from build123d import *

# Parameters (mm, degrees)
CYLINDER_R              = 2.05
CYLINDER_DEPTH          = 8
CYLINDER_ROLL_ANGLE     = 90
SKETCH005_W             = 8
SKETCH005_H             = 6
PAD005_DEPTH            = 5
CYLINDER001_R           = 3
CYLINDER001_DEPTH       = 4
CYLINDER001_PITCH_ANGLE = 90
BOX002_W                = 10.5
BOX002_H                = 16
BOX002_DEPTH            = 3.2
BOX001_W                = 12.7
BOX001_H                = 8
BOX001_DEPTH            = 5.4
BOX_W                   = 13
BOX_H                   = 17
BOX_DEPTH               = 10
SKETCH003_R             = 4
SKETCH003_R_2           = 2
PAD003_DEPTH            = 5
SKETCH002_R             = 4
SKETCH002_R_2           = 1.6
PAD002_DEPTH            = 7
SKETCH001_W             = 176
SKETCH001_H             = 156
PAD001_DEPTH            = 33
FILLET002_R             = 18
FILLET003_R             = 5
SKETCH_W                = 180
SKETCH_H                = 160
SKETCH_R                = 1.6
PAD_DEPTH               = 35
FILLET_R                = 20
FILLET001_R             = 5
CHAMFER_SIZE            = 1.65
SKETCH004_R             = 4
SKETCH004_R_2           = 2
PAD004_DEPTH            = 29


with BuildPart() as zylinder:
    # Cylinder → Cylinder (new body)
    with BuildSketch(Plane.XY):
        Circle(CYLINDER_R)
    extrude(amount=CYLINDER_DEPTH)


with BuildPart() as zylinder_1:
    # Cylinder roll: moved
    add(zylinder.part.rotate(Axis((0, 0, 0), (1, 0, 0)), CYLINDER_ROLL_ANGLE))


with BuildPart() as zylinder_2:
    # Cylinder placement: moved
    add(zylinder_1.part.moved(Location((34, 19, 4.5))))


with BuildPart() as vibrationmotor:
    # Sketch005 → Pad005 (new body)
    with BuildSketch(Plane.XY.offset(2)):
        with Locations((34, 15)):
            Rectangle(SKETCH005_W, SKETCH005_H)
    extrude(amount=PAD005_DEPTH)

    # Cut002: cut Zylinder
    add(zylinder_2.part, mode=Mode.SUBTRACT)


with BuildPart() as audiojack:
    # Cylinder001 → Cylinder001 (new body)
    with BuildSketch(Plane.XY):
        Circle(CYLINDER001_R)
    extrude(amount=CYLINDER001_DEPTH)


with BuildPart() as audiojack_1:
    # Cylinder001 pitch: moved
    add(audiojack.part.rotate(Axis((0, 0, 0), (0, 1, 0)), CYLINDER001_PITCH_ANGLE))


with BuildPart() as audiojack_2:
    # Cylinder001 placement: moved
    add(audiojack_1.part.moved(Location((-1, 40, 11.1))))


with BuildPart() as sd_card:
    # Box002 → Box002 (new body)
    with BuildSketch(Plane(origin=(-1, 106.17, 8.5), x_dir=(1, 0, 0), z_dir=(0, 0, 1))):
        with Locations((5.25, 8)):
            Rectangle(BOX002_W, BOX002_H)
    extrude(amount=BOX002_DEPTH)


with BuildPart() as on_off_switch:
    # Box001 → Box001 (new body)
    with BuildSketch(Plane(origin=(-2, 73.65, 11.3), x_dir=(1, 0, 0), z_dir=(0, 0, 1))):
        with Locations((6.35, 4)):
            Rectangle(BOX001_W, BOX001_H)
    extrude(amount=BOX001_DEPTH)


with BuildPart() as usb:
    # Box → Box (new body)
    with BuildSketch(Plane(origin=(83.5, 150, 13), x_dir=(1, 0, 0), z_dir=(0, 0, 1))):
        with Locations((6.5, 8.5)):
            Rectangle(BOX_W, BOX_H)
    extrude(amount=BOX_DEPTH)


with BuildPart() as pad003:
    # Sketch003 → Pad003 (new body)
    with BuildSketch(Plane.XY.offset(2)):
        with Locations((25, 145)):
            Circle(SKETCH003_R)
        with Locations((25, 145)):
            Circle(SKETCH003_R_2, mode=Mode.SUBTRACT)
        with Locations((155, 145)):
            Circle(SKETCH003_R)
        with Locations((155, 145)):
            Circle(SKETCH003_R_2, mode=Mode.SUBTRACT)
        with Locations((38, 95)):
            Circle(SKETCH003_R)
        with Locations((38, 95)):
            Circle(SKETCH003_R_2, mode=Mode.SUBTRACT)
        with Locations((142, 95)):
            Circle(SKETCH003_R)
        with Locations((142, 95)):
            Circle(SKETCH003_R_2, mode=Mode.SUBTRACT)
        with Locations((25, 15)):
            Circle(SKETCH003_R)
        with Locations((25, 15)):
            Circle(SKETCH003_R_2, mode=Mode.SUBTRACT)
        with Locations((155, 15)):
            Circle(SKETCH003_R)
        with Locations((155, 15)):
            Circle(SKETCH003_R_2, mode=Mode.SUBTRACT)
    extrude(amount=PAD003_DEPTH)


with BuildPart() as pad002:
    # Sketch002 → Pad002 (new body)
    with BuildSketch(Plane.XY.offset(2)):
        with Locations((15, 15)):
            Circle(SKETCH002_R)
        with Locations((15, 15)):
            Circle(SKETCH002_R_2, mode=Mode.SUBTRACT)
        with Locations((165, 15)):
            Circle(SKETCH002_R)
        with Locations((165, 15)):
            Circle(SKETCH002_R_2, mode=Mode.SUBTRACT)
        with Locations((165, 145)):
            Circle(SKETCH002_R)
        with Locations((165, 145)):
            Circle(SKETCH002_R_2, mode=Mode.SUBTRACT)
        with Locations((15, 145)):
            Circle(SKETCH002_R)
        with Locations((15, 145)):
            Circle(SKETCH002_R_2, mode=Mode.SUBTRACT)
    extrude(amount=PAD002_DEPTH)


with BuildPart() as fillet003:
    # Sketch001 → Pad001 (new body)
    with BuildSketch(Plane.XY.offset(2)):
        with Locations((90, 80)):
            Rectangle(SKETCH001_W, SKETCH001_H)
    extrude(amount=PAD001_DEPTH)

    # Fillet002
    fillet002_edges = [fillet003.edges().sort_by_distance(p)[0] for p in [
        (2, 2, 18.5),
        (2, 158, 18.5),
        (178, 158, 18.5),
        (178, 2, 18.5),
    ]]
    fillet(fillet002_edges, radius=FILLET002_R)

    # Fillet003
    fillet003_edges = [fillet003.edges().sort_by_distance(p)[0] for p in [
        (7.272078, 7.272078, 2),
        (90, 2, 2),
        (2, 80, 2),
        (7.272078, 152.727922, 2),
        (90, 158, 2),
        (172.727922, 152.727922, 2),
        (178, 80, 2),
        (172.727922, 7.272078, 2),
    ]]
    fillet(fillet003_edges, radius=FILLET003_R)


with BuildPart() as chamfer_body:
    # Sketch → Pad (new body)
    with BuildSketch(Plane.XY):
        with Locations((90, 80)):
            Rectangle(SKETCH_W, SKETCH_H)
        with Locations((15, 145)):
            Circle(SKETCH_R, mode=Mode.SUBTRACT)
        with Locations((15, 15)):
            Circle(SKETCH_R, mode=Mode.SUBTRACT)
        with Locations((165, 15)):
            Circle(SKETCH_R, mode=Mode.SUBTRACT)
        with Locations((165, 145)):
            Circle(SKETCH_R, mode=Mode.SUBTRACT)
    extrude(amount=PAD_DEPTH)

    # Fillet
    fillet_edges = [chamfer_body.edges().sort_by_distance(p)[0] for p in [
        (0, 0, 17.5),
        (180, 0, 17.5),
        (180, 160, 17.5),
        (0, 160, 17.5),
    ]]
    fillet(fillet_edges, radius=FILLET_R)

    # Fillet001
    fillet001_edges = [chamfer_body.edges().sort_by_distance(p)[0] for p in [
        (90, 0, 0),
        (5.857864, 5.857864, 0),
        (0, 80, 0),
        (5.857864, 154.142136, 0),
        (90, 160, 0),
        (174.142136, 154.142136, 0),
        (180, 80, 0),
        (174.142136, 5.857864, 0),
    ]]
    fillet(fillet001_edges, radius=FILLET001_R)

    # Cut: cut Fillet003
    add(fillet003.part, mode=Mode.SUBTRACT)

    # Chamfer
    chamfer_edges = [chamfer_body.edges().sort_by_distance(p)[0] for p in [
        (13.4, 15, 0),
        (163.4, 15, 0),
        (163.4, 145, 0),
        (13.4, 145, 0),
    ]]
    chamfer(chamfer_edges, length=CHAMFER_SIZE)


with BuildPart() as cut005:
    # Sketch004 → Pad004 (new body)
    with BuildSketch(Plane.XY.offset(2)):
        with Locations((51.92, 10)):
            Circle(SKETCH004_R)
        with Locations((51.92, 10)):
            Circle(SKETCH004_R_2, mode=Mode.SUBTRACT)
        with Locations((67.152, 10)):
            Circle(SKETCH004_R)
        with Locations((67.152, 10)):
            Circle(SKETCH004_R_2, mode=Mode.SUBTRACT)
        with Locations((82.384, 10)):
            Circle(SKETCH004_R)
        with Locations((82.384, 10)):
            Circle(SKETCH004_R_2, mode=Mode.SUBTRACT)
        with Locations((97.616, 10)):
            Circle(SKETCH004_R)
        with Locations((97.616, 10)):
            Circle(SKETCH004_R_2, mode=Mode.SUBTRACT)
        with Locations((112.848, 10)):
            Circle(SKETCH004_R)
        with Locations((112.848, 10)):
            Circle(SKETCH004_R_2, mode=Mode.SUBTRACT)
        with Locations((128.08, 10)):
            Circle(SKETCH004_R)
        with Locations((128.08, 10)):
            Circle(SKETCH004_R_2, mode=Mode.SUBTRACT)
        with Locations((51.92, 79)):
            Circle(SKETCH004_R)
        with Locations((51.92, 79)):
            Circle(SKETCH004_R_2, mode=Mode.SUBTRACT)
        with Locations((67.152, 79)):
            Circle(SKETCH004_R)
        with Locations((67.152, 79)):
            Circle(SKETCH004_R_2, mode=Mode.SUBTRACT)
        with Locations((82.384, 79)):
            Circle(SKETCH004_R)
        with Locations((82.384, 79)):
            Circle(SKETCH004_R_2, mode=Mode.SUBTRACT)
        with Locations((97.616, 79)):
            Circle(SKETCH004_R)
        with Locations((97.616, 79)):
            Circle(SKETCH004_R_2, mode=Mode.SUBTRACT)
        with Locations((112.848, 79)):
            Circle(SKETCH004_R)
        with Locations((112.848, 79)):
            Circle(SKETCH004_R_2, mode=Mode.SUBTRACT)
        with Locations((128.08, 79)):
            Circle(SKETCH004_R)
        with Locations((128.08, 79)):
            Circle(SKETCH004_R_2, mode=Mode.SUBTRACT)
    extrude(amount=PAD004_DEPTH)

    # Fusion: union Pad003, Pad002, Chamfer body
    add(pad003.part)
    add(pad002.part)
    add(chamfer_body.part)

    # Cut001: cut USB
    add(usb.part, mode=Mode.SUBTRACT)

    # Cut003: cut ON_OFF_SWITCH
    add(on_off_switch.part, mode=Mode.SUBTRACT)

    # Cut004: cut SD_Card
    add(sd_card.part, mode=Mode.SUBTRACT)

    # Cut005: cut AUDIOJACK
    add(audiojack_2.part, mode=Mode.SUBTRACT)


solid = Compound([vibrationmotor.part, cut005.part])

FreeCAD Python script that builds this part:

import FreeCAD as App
import Part
import Sketcher
Q = App.Units.Quantity


def edges_at(feature, points):
    """Names of the edges that pass closest to the given points."""
    edges = feature.Shape.Edges
    near = lambda p: min(range(len(edges)), key=lambda i: edges[i].distToShape(Part.Vertex(*p))[0])
    return sorted({f"Edge{near(p) + 1}" for p in points})

doc = App.newDocument("Part")
body = doc.addObject("PartDesign::Body", "Body")

sketch1 = body.newObject("Sketcher::SketchObject", "Sketch")
sketch1.AttachmentSupport = (doc.getObject("XY_Plane"), [""])
sketch1.MapMode = "FlatFace"
sketch1.addGeometry(Part.Circle(App.Vector(0, 0, 0), App.Vector(0, 0, 1), 2), False)
sketch1.addConstraint(Sketcher.Constraint("Coincident", 0, 3, -1, 1))
sketch1.addConstraint(Sketcher.Constraint("Diameter", 0, Q("4.1 mm")))
pad1 = body.newObject("PartDesign::Pad", "Pad")
pad1.Profile = sketch1
pad1.Length = 8
body2 = doc.addObject("PartDesign::Body", "Body001")
doc.recompute()

body.Placement = App.Placement(App.Vector(0, 0, 0), App.Rotation(App.Vector(1, 0, 0), 90))
boolean = body2.newObject("PartDesign::Boolean", "Boolean")
boolean.Type = "Fuse"
boolean.addObjects([body])
body3 = doc.addObject("PartDesign::Body", "Body002")
doc.recompute()

body2.Placement = App.Placement(App.Vector(34, 19, 4.5), App.Rotation(App.Vector(0, 0, 1), 0))
boolean2 = body3.newObject("PartDesign::Boolean", "Boolean001")
boolean2.Type = "Fuse"
boolean2.addObjects([body2])
body4 = doc.addObject("PartDesign::Body", "Body003")

sketch2 = body4.newObject("Sketcher::SketchObject", "Sketch001")
sketch2.AttachmentSupport = (doc.getObject("XY_Plane003"), [""])
sketch2.MapMode = "FlatFace"
sketch2.AttachmentOffset = App.Placement(App.Vector(0, 0, 2), App.Rotation())
sketch2.addGeometry(Part.LineSegment(App.Vector(30, 18, 0), App.Vector(30, 12, 0)), False)
sketch2.addGeometry(Part.LineSegment(App.Vector(30, 12, 0), App.Vector(38, 12, 0)), False)
sketch2.addGeometry(Part.LineSegment(App.Vector(38, 12, 0), App.Vector(38, 18, 0)), False)
sketch2.addGeometry(Part.LineSegment(App.Vector(38, 18, 0), App.Vector(30, 18, 0)), False)
sketch2.addConstraint(Sketcher.Constraint("Coincident", 0, 2, 1, 1))
sketch2.addConstraint(Sketcher.Constraint("Coincident", 1, 2, 2, 1))
sketch2.addConstraint(Sketcher.Constraint("Coincident", 2, 2, 3, 1))
sketch2.addConstraint(Sketcher.Constraint("Coincident", 3, 2, 0, 1))
sketch2.addConstraint(Sketcher.Constraint("Vertical", 0))
sketch2.addConstraint(Sketcher.Constraint("Horizontal", 1))
sketch2.addConstraint(Sketcher.Constraint("Vertical", 2))
sketch2.addConstraint(Sketcher.Constraint("Horizontal", 3))
sketch2.addConstraint(Sketcher.Constraint("DistanceX", 1, 1, 1, 2, Q("8 mm")))
sketch2.addConstraint(Sketcher.Constraint("DistanceY", 0, 2, 0, 1, Q("6 mm")))
sketch2.addConstraint(Sketcher.Constraint("DistanceX", -1, 1, 0, 2, Q("30 mm")))
sketch2.addConstraint(Sketcher.Constraint("DistanceY", -1, 1, 0, 2, Q("12 mm")))
pad2 = body4.newObject("PartDesign::Pad", "Pad001")
pad2.Profile = sketch2
pad2.Length = 5
doc.recompute()

boolean3 = body4.newObject("PartDesign::Boolean", "Boolean002")
boolean3.Type = "Cut"
boolean3.addObjects([body3])
body5 = doc.addObject("PartDesign::Body", "Body004")

sketch3 = body5.newObject("Sketcher::SketchObject", "Sketch002")
sketch3.AttachmentSupport = (doc.getObject("XY_Plane004"), [""])
sketch3.MapMode = "FlatFace"
sketch3.addGeometry(Part.Circle(App.Vector(0, 0, 0), App.Vector(0, 0, 1), 3), False)
sketch3.addConstraint(Sketcher.Constraint("Coincident", 0, 3, -1, 1))
sketch3.addConstraint(Sketcher.Constraint("Diameter", 0, Q("6 mm")))
pad3 = body5.newObject("PartDesign::Pad", "Pad002")
pad3.Profile = sketch3
pad3.Length = 4
body6 = doc.addObject("PartDesign::Body", "Body005")
doc.recompute()

body5.Placement = App.Placement(App.Vector(0, 0, 0), App.Rotation(App.Vector(0, 1, 0), 90))
boolean4 = body6.newObject("PartDesign::Boolean", "Boolean003")
boolean4.Type = "Fuse"
boolean4.addObjects([body5])
body7 = doc.addObject("PartDesign::Body", "Body006")
doc.recompute()

body6.Placement = App.Placement(App.Vector(-1, 40, 11.1), App.Rotation(App.Vector(0, 0, 1), 0))
boolean5 = body7.newObject("PartDesign::Boolean", "Boolean004")
boolean5.Type = "Fuse"
boolean5.addObjects([body6])
body8 = doc.addObject("PartDesign::Body", "Body007")

sketch4 = body8.newObject("Sketcher::SketchObject", "Sketch003")
sketch4.AttachmentSupport = (doc.getObject("XY_Plane007"), [""])
sketch4.MapMode = "FlatFace"
sketch4.AttachmentOffset = App.Placement(App.Vector(0, 0, 8.5), App.Rotation())
sketch4.addGeometry(Part.LineSegment(App.Vector(-1, 122, 0), App.Vector(-1, 106, 0)), False)
sketch4.addGeometry(Part.LineSegment(App.Vector(-1, 106, 0), App.Vector(10, 106, 0)), False)
sketch4.addGeometry(Part.LineSegment(App.Vector(10, 106, 0), App.Vector(10, 122, 0)), False)
sketch4.addGeometry(Part.LineSegment(App.Vector(10, 122, 0), App.Vector(-1, 122, 0)), False)
sketch4.addConstraint(Sketcher.Constraint("Coincident", 0, 2, 1, 1))
sketch4.addConstraint(Sketcher.Constraint("Coincident", 1, 2, 2, 1))
sketch4.addConstraint(Sketcher.Constraint("Coincident", 2, 2, 3, 1))
sketch4.addConstraint(Sketcher.Constraint("Coincident", 3, 2, 0, 1))
sketch4.addConstraint(Sketcher.Constraint("Vertical", 0))
sketch4.addConstraint(Sketcher.Constraint("Horizontal", 1))
sketch4.addConstraint(Sketcher.Constraint("Vertical", 2))
sketch4.addConstraint(Sketcher.Constraint("Horizontal", 3))
sketch4.addConstraint(Sketcher.Constraint("DistanceY", 0, 2, 0, 1, Q("16 mm")))
sketch4.addConstraint(Sketcher.Constraint("DistanceX", 1, 1, 1, 2, Q("10.5 mm")))
sketch4.addConstraint(Sketcher.Constraint("DistanceX", 0, 2, -1, 1, Q("1 mm")))
sketch4.addConstraint(Sketcher.Constraint("DistanceY", -1, 1, 0, 2, Q("106.17 mm")))
pad4 = body8.newObject("PartDesign::Pad", "Pad003")
pad4.Profile = sketch4
pad4.Length = 3.2
body9 = doc.addObject("PartDesign::Body", "Body008")

sketch5 = body9.newObject("Sketcher::SketchObject", "Sketch004")
sketch5.AttachmentSupport = (doc.getObject("XY_Plane008"), [""])
sketch5.MapMode = "FlatFace"
sketch5.AttachmentOffset = App.Placement(App.Vector(0, 0, 11.3), App.Rotation())
sketch5.addGeometry(Part.LineSegment(App.Vector(-2, 82, 0), App.Vector(-2, 74, 0)), False)
sketch5.addGeometry(Part.LineSegment(App.Vector(-2, 74, 0), App.Vector(11, 74, 0)), False)
sketch5.addGeometry(Part.LineSegment(App.Vector(11, 74, 0), App.Vector(11, 82, 0)), False)
sketch5.addGeometry(Part.LineSegment(App.Vector(11, 82, 0), App.Vector(-2, 82, 0)), False)
sketch5.addConstraint(Sketcher.Constraint("Coincident", 0, 2, 1, 1))
sketch5.addConstraint(Sketcher.Constraint("Coincident", 1, 2, 2, 1))
sketch5.addConstraint(Sketcher.Constraint("Coincident", 2, 2, 3, 1))
sketch5.addConstraint(Sketcher.Constraint("Coincident", 3, 2, 0, 1))
sketch5.addConstraint(Sketcher.Constraint("Vertical", 0))
sketch5.addConstraint(Sketcher.Constraint("Horizontal", 1))
sketch5.addConstraint(Sketcher.Constraint("Vertical", 2))
sketch5.addConstraint(Sketcher.Constraint("Horizontal", 3))
sketch5.addConstraint(Sketcher.Constraint("DistanceY", 0, 2, 0, 1, Q("8 mm")))
sketch5.addConstraint(Sketcher.Constraint("DistanceX", 1, 1, 1, 2, Q("12.7 mm")))
sketch5.addConstraint(Sketcher.Constraint("DistanceX", 0, 2, -1, 1, Q("2 mm")))
sketch5.addConstraint(Sketcher.Constraint("DistanceY", -1, 1, 0, 2, Q("73.65 mm")))
pad5 = body9.newObject("PartDesign::Pad", "Pad004")
pad5.Profile = sketch5
pad5.Length = 5.4
body10 = doc.addObject("PartDesign::Body", "Body009")

sketch6 = body10.newObject("Sketcher::SketchObject", "Sketch005")
sketch6.AttachmentSupport = (doc.getObject("XY_Plane009"), [""])
sketch6.MapMode = "FlatFace"
sketch6.AttachmentOffset = App.Placement(App.Vector(0, 0, 13), App.Rotation())
sketch6.addGeometry(Part.LineSegment(App.Vector(84, 167, 0), App.Vector(84, 150, 0)), False)
sketch6.addGeometry(Part.LineSegment(App.Vector(84, 150, 0), App.Vector(96, 150, 0)), False)
sketch6.addGeometry(Part.LineSegment(App.Vector(96, 150, 0), App.Vector(96, 167, 0)), False)
sketch6.addGeometry(Part.LineSegment(App.Vector(96, 167, 0), App.Vector(84, 167, 0)), False)
sketch6.addConstraint(Sketcher.Constraint("Coincident", 0, 2, 1, 1))
sketch6.addConstraint(Sketcher.Constraint("Coincident", 1, 2, 2, 1))
sketch6.addConstraint(Sketcher.Constraint("Coincident", 2, 2, 3, 1))
sketch6.addConstraint(Sketcher.Constraint("Coincident", 3, 2, 0, 1))
sketch6.addConstraint(Sketcher.Constraint("Vertical", 0))
sketch6.addConstraint(Sketcher.Constraint("Horizontal", 1))
sketch6.addConstraint(Sketcher.Constraint("Vertical", 2))
sketch6.addConstraint(Sketcher.Constraint("Horizontal", 3))
sketch6.addConstraint(Sketcher.Constraint("DistanceX", 1, 1, 1, 2, Q("13 mm")))
sketch6.addConstraint(Sketcher.Constraint("DistanceY", 0, 2, 0, 1, Q("17 mm")))
sketch6.addConstraint(Sketcher.Constraint("DistanceY", -1, 1, 0, 2, Q("150 mm")))
sketch6.addConstraint(Sketcher.Constraint("DistanceX", -1, 1, 0, 2, Q("83.5 mm")))
pad6 = body10.newObject("PartDesign::Pad", "Pad005")
pad6.Profile = sketch6
pad6.Length = 10
body11 = doc.addObject("PartDesign::Body", "Body010")
body11.AllowCompound = True

sketch7 = body11.newObject("Sketcher::SketchObject", "Sketch006")
sketch7.AttachmentSupport = (doc.getObject("XY_Plane010"), [""])
sketch7.MapMode = "FlatFace"
sketch7.AttachmentOffset = App.Placement(App.Vector(0, 0, 2), App.Rotation())
sketch7.addGeometry(Part.Circle(App.Vector(25, 145, 0), App.Vector(0, 0, 1), 4), False)
sketch7.addGeometry(Part.Circle(App.Vector(25, 145, 0), App.Vector(0, 0, 1), 2), False)
sketch7.addGeometry(Part.Circle(App.Vector(155, 145, 0), App.Vector(0, 0, 1), 4), False)
sketch7.addGeometry(Part.Circle(App.Vector(155, 145, 0), App.Vector(0, 0, 1), 2), False)
sketch7.addGeometry(Part.Circle(App.Vector(38, 95, 0), App.Vector(0, 0, 1), 4), False)
sketch7.addGeometry(Part.Circle(App.Vector(38, 95, 0), App.Vector(0, 0, 1), 2), False)
sketch7.addGeometry(Part.Circle(App.Vector(142, 95, 0), App.Vector(0, 0, 1), 4), False)
sketch7.addGeometry(Part.Circle(App.Vector(142, 95, 0), App.Vector(0, 0, 1), 2), False)
sketch7.addGeometry(Part.Circle(App.Vector(25, 15, 0), App.Vector(0, 0, 1), 4), False)
sketch7.addGeometry(Part.Circle(App.Vector(25, 15, 0), App.Vector(0, 0, 1), 2), False)
sketch7.addGeometry(Part.Circle(App.Vector(155, 15, 0), App.Vector(0, 0, 1), 4), False)
sketch7.addGeometry(Part.Circle(App.Vector(155, 15, 0), App.Vector(0, 0, 1), 2), False)
sketch7.addConstraint(Sketcher.Constraint("Coincident", 1, 3, 0, 3))
sketch7.addConstraint(Sketcher.Constraint("Coincident", 3, 3, 2, 3))
sketch7.addConstraint(Sketcher.Constraint("Coincident", 5, 3, 4, 3))
sketch7.addConstraint(Sketcher.Constraint("Coincident", 7, 3, 6, 3))
sketch7.addConstraint(Sketcher.Constraint("Coincident", 9, 3, 8, 3))
sketch7.addConstraint(Sketcher.Constraint("Coincident", 11, 3, 10, 3))
sketch7.addConstraint(Sketcher.Constraint("Equal", 0, 2))
sketch7.addConstraint(Sketcher.Constraint("Equal", 1, 3))
sketch7.addConstraint(Sketcher.Constraint("Equal", 2, 4))
sketch7.addConstraint(Sketcher.Constraint("Equal", 3, 5))
sketch7.addConstraint(Sketcher.Constraint("Equal", 4, 6))
sketch7.addConstraint(Sketcher.Constraint("Equal", 5, 7))
sketch7.addConstraint(Sketcher.Constraint("Equal", 6, 8))
sketch7.addConstraint(Sketcher.Constraint("Equal", 7, 9))
sketch7.addConstraint(Sketcher.Constraint("Equal", 8, 10))
sketch7.addConstraint(Sketcher.Constraint("Equal", 9, 11))
sketch7.addConstraint(Sketcher.Constraint("Horizontal", 1, 3, 2, 3))
sketch7.addConstraint(Sketcher.Constraint("Horizontal", 5, 3, 6, 3))
sketch7.addConstraint(Sketcher.Constraint("Horizontal", 9, 3, 10, 3))
sketch7.addConstraint(Sketcher.Constraint("Vertical", 1, 3, 8, 3))
sketch7.addConstraint(Sketcher.Constraint("Vertical", 3, 3, 10, 3))
sketch7.addConstraint(Sketcher.Constraint("Diameter", 0, Q("8 mm")))
sketch7.addConstraint(Sketcher.Constraint("Diameter", 1, Q("4 mm")))
sketch7.addConstraint(Sketcher.Constraint("DistanceX", -1, 1, 0, 3, Q("25 mm")))
sketch7.addConstraint(Sketcher.Constraint("DistanceY", -1, 1, 0, 3, Q("145 mm")))
sketch7.addConstraint(Sketcher.Constraint("DistanceX", -1, 1, 2, 3, Q("155 mm")))
sketch7.addConstraint(Sketcher.Constraint("DistanceX", -1, 1, 4, 3, Q("38 mm")))
sketch7.addConstraint(Sketcher.Constraint("DistanceY", -1, 1, 4, 3, Q("95 mm")))
sketch7.addConstraint(Sketcher.Constraint("DistanceX", -1, 1, 6, 3, Q("142 mm")))
sketch7.addConstraint(Sketcher.Constraint("DistanceY", -1, 1, 8, 3, Q("15 mm")))
pad7 = body11.newObject("PartDesign::Pad", "Pad006")
pad7.Profile = sketch7
pad7.Length = 5
body12 = doc.addObject("PartDesign::Body", "Body011")
body12.AllowCompound = True

sketch8 = body12.newObject("Sketcher::SketchObject", "Sketch007")
sketch8.AttachmentSupport = (doc.getObject("XY_Plane011"), [""])
sketch8.MapMode = "FlatFace"
sketch8.AttachmentOffset = App.Placement(App.Vector(0, 0, 2), App.Rotation())
sketch8.addGeometry(Part.Circle(App.Vector(15, 15, 0), App.Vector(0, 0, 1), 4), False)
sketch8.addGeometry(Part.Circle(App.Vector(15, 15, 0), App.Vector(0, 0, 1), 1.6), False)
sketch8.addGeometry(Part.Circle(App.Vector(165, 15, 0), App.Vector(0, 0, 1), 4), False)
sketch8.addGeometry(Part.Circle(App.Vector(165, 15, 0), App.Vector(0, 0, 1), 1.6), False)
sketch8.addGeometry(Part.Circle(App.Vector(165, 145, 0), App.Vector(0, 0, 1), 4), False)
sketch8.addGeometry(Part.Circle(App.Vector(165, 145, 0), App.Vector(0, 0, 1), 1.6), False)
sketch8.addGeometry(Part.Circle(App.Vector(15, 145, 0), App.Vector(0, 0, 1), 4), False)
sketch8.addGeometry(Part.Circle(App.Vector(15, 145, 0), App.Vector(0, 0, 1), 1.6), False)
sketch8.addConstraint(Sketcher.Constraint("Coincident", 1, 3, 0, 3))
sketch8.addConstraint(Sketcher.Constraint("Coincident", 3, 3, 2, 3))
sketch8.addConstraint(Sketcher.Constraint("Coincident", 5, 3, 4, 3))
sketch8.addConstraint(Sketcher.Constraint("Coincident", 7, 3, 6, 3))
sketch8.addConstraint(Sketcher.Constraint("Equal", 0, 2))
sketch8.addConstraint(Sketcher.Constraint("Equal", 1, 3))
sketch8.addConstraint(Sketcher.Constraint("Equal", 2, 4))
sketch8.addConstraint(Sketcher.Constraint("Equal", 3, 5))
sketch8.addConstraint(Sketcher.Constraint("Equal", 4, 6))
sketch8.addConstraint(Sketcher.Constraint("Equal", 5, 7))
sketch8.addConstraint(Sketcher.Constraint("Horizontal", 1, 3, 2, 3))
sketch8.addConstraint(Sketcher.Constraint("Horizontal", 5, 3, 6, 3))
sketch8.addConstraint(Sketcher.Constraint("Vertical", 3, 3, 4, 3))
sketch8.addConstraint(Sketcher.Constraint("Vertical", 1, 3, 6, 3))
sketch8.addConstraint(Sketcher.Constraint("Diameter", 0, Q("8 mm")))
sketch8.addConstraint(Sketcher.Constraint("Diameter", 1, Q("3.2 mm")))
sketch8.addConstraint(Sketcher.Constraint("DistanceX", -1, 1, 0, 3, Q("15 mm")))
sketch8.addConstraint(Sketcher.Constraint("DistanceY", -1, 1, 0, 3, Q("15 mm")))
sketch8.addConstraint(Sketcher.Constraint("DistanceX", -1, 1, 2, 3, Q("165 mm")))
sketch8.addConstraint(Sketcher.Constraint("DistanceY", -1, 1, 4, 3, Q("145 mm")))
pad8 = body12.newObject("PartDesign::Pad", "Pad007")
pad8.Profile = sketch8
pad8.Length = 7
body13 = doc.addObject("PartDesign::Body", "Body012")

sketch9 = body13.newObject("Sketcher::SketchObject", "Sketch008")
sketch9.AttachmentSupport = (doc.getObject("XY_Plane012"), [""])
sketch9.MapMode = "FlatFace"
sketch9.AttachmentOffset = App.Placement(App.Vector(0, 0, 2), App.Rotation())
sketch9.addGeometry(Part.LineSegment(App.Vector(2, 158, 0), App.Vector(2, 2, 0)), False)
sketch9.addGeometry(Part.LineSegment(App.Vector(2, 2, 0), App.Vector(178, 2, 0)), False)
sketch9.addGeometry(Part.LineSegment(App.Vector(178, 2, 0), App.Vector(178, 158, 0)), False)
sketch9.addGeometry(Part.LineSegment(App.Vector(178, 158, 0), App.Vector(2, 158, 0)), False)
sketch9.addConstraint(Sketcher.Constraint("Coincident", 0, 2, 1, 1))
sketch9.addConstraint(Sketcher.Constraint("Coincident", 1, 2, 2, 1))
sketch9.addConstraint(Sketcher.Constraint("Coincident", 2, 2, 3, 1))
sketch9.addConstraint(Sketcher.Constraint("Coincident", 3, 2, 0, 1))
sketch9.addConstraint(Sketcher.Constraint("Vertical", 0))
sketch9.addConstraint(Sketcher.Constraint("Horizontal", 1))
sketch9.addConstraint(Sketcher.Constraint("Vertical", 2))
sketch9.addConstraint(Sketcher.Constraint("Horizontal", 3))
sketch9.addConstraint(Sketcher.Constraint("DistanceX", 1, 1, 1, 2, Q("176 mm")))
sketch9.addConstraint(Sketcher.Constraint("DistanceY", 0, 2, 0, 1, Q("156 mm")))
sketch9.addConstraint(Sketcher.Constraint("DistanceX", -1, 1, 0, 2, Q("2 mm")))
sketch9.addConstraint(Sketcher.Constraint("DistanceY", -1, 1, 0, 2, Q("2 mm")))
pad9 = body13.newObject("PartDesign::Pad", "Pad008")
pad9.Profile = sketch9
pad9.Length = 33
doc.recompute()

fillet = body13.newObject("PartDesign::Fillet", "Fillet")
fillet.Base = (pad9, edges_at(pad9, [
    (2, 2, 18.5),
    (2, 158, 18.5),
    (178, 158, 18.5),
    (178, 2, 18.5),
]))
fillet.Radius = 18
doc.recompute()

fillet2 = body13.newObject("PartDesign::Fillet", "Fillet001")
fillet2.Base = (fillet, edges_at(fillet, [
    (7.272, 7.272, 2),
    (90, 2, 2),
    (2, 80, 2),
    (7.272, 152.728, 2),
    (90, 158, 2),
    (172.728, 152.728, 2),
    (178, 80, 2),
    (172.728, 7.272, 2),
]))
fillet2.Radius = 5
body14 = doc.addObject("PartDesign::Body", "Body013")

sketch10 = body14.newObject("Sketcher::SketchObject", "Sketch009")
sketch10.AttachmentSupport = (doc.getObject("XY_Plane013"), [""])
sketch10.MapMode = "FlatFace"
sketch10.addGeometry(Part.LineSegment(App.Vector(0, 160, 0), App.Vector(0, 0, 0)), False)
sketch10.addGeometry(Part.LineSegment(App.Vector(0, 0, 0), App.Vector(180, 0, 0)), False)
sketch10.addGeometry(Part.LineSegment(App.Vector(180, 0, 0), App.Vector(180, 160, 0)), False)
sketch10.addGeometry(Part.LineSegment(App.Vector(180, 160, 0), App.Vector(0, 160, 0)), False)
sketch10.addGeometry(Part.Circle(App.Vector(15, 15, 0), App.Vector(0, 0, 1), 1.6), False)
sketch10.addGeometry(Part.Circle(App.Vector(165, 15, 0), App.Vector(0, 0, 1), 1.6), False)
sketch10.addGeometry(Part.Circle(App.Vector(15, 145, 0), App.Vector(0, 0, 1), 1.6), False)
sketch10.addGeometry(Part.Circle(App.Vector(165, 145, 0), App.Vector(0, 0, 1), 1.6), False)
sketch10.addConstraint(Sketcher.Constraint("Coincident", 0, 2, 1, 1))
sketch10.addConstraint(Sketcher.Constraint("Coincident", 1, 2, 2, 1))
sketch10.addConstraint(Sketcher.Constraint("Coincident", 2, 2, 3, 1))
sketch10.addConstraint(Sketcher.Constraint("Coincident", 3, 2, 0, 1))
sketch10.addConstraint(Sketcher.Constraint("Vertical", 0))
sketch10.addConstraint(Sketcher.Constraint("Horizontal", 1))
sketch10.addConstraint(Sketcher.Constraint("Vertical", 2))
sketch10.addConstraint(Sketcher.Constraint("Horizontal", 3))
sketch10.addConstraint(Sketcher.Constraint("Coincident", 0, 2, -1, 1))
sketch10.addConstraint(Sketcher.Constraint("Equal", 4, 5))
sketch10.addConstraint(Sketcher.Constraint("Equal", 5, 6))
sketch10.addConstraint(Sketcher.Constraint("Equal", 6, 7))
sketch10.addConstraint(Sketcher.Constraint("Horizontal", 4, 3, 5, 3))
sketch10.addConstraint(Sketcher.Constraint("Horizontal", 6, 3, 7, 3))
sketch10.addConstraint(Sketcher.Constraint("Vertical", 4, 3, 6, 3))
sketch10.addConstraint(Sketcher.Constraint("Vertical", 5, 3, 7, 3))
sketch10.addConstraint(Sketcher.Constraint("Diameter", 4, Q("3.2 mm")))
sketch10.addConstraint(Sketcher.Constraint("DistanceX", 1, 1, 1, 2, Q("180 mm")))
sketch10.addConstraint(Sketcher.Constraint("DistanceY", 0, 2, 0, 1, Q("160 mm")))
sketch10.addConstraint(Sketcher.Constraint("DistanceX", -1, 1, 4, 3, Q("15 mm")))
sketch10.addConstraint(Sketcher.Constraint("DistanceY", -1, 1, 4, 3, Q("15 mm")))
sketch10.addConstraint(Sketcher.Constraint("DistanceX", -1, 1, 5, 3, Q("165 mm")))
sketch10.addConstraint(Sketcher.Constraint("DistanceY", -1, 1, 6, 3, Q("145 mm")))
pad10 = body14.newObject("PartDesign::Pad", "Pad009")
pad10.Profile = sketch10
pad10.Length = 35
doc.recompute()

fillet3 = body14.newObject("PartDesign::Fillet", "Fillet002")
fillet3.Base = (pad10, edges_at(pad10, [
    (0, 0, 17.5),
    (180, 0, 17.5),
    (180, 160, 17.5),
    (0, 160, 17.5),
]))
fillet3.Radius = 20
doc.recompute()

fillet4 = body14.newObject("PartDesign::Fillet", "Fillet003")
fillet4.Base = (fillet3, edges_at(fillet3, [
    (90, 0, 0),
    (5.858, 5.858, 0),
    (0, 80, 0),
    (5.858, 154.142, 0),
    (90, 160, 0),
    (174.142, 154.142, 0),
    (180, 80, 0),
    (174.142, 5.858, 0),
]))
fillet4.Radius = 5
doc.recompute()

boolean6 = body14.newObject("PartDesign::Boolean", "Boolean005")
boolean6.Type = "Cut"
boolean6.addObjects([body13])
doc.recompute()

chamfer = body14.newObject("PartDesign::Chamfer", "Chamfer")
chamfer.Base = (boolean6, edges_at(boolean6, [
    (13.4, 15, 0),
    (163.4, 15, 0),
    (163.4, 145, 0),
    (13.4, 145, 0),
]))
chamfer.Size = 1.65
body15 = doc.addObject("PartDesign::Body", "Body014")
body15.AllowCompound = True

sketch11 = body15.newObject("Sketcher::SketchObject", "Sketch010")
sketch11.AttachmentSupport = (doc.getObject("XY_Plane014"), [""])
sketch11.MapMode = "FlatFace"
sketch11.AttachmentOffset = App.Placement(App.Vector(0, 0, 2), App.Rotation())
sketch11.addGeometry(Part.Circle(App.Vector(51.9, 10, 0), App.Vector(0, 0, 1), 4), False)
sketch11.addGeometry(Part.Circle(App.Vector(51.9, 10, 0), App.Vector(0, 0, 1), 2), False)
sketch11.addGeometry(Part.Circle(App.Vector(67.2, 10, 0), App.Vector(0, 0, 1), 4), False)
sketch11.addGeometry(Part.Circle(App.Vector(67.2, 10, 0), App.Vector(0, 0, 1), 2), False)
sketch11.addGeometry(Part.Circle(App.Vector(82.4, 10, 0), App.Vector(0, 0, 1), 4), False)
sketch11.addGeometry(Part.Circle(App.Vector(82.4, 10, 0), App.Vector(0, 0, 1), 2), False)
sketch11.addGeometry(Part.Circle(App.Vector(97.6, 10, 0), App.Vector(0, 0, 1), 4), False)
sketch11.addGeometry(Part.Circle(App.Vector(97.6, 10, 0), App.Vector(0, 0, 1), 2), False)
sketch11.addGeometry(Part.Circle(App.Vector(112.8, 10, 0), App.Vector(0, 0, 1), 4), False)
sketch11.addGeometry(Part.Circle(App.Vector(112.8, 10, 0), App.Vector(0, 0, 1), 2), False)
sketch11.addGeometry(Part.Circle(App.Vector(128.1, 10, 0), App.Vector(0, 0, 1), 4), False)
sketch11.addGeometry(Part.Circle(App.Vector(128.1, 10, 0), App.Vector(0, 0, 1), 2), False)
sketch11.addGeometry(Part.Circle(App.Vector(51.9, 79, 0), App.Vector(0, 0, 1), 4), False)
sketch11.addGeometry(Part.Circle(App.Vector(51.9, 79, 0), App.Vector(0, 0, 1), 2), False)
sketch11.addGeometry(Part.Circle(App.Vector(67.2, 79, 0), App.Vector(0, 0, 1), 4), False)
sketch11.addGeometry(Part.Circle(App.Vector(67.2, 79, 0), App.Vector(0, 0, 1), 2), False)
sketch11.addGeometry(Part.Circle(App.Vector(82.4, 79, 0), App.Vector(0, 0, 1), 4), False)
sketch11.addGeometry(Part.Circle(App.Vector(82.4, 79, 0), App.Vector(0, 0, 1), 2), False)
sketch11.addGeometry(Part.Circle(App.Vector(97.6, 79, 0), App.Vector(0, 0, 1), 4), False)
sketch11.addGeometry(Part.Circle(App.Vector(97.6, 79, 0), App.Vector(0, 0, 1), 2), False)
sketch11.addGeometry(Part.Circle(App.Vector(112.8, 79, 0), App.Vector(0, 0, 1), 4), False)
sketch11.addGeometry(Part.Circle(App.Vector(112.8, 79, 0), App.Vector(0, 0, 1), 2), False)
sketch11.addGeometry(Part.Circle(App.Vector(128.1, 79, 0), App.Vector(0, 0, 1), 4), False)
sketch11.addGeometry(Part.Circle(App.Vector(128.1, 79, 0), App.Vector(0, 0, 1), 2), False)
sketch11.addConstraint(Sketcher.Constraint("Coincident", 1, 3, 0, 3))
sketch11.addConstraint(Sketcher.Constraint("Coincident", 3, 3, 2, 3))
sketch11.addConstraint(Sketcher.Constraint("Coincident", 5, 3, 4, 3))
sketch11.addConstraint(Sketcher.Constraint("Coincident", 7, 3, 6, 3))
sketch11.addConstraint(Sketcher.Constraint("Coincident", 9, 3, 8, 3))
sketch11.addConstraint(Sketcher.Constraint("Coincident", 11, 3, 10, 3))
sketch11.addConstraint(Sketcher.Constraint("Coincident", 13, 3, 12, 3))
sketch11.addConstraint(Sketcher.Constraint("Coincident", 15, 3, 14, 3))
sketch11.addConstraint(Sketcher.Constraint("Coincident", 17, 3, 16, 3))
sketch11.addConstraint(Sketcher.Constraint("Coincident", 19, 3, 18, 3))
sketch11.addConstraint(Sketcher.Constraint("Coincident", 21, 3, 20, 3))
sketch11.addConstraint(Sketcher.Constraint("Coincident", 23, 3, 22, 3))
sketch11.addConstraint(Sketcher.Constraint("Equal", 0, 2))
sketch11.addConstraint(Sketcher.Constraint("Equal", 1, 3))
sketch11.addConstraint(Sketcher.Constraint("Equal", 2, 4))
sketch11.addConstraint(Sketcher.Constraint("Equal", 3, 5))
sketch11.addConstraint(Sketcher.Constraint("Equal", 4, 6))
sketch11.addConstraint(Sketcher.Constraint("Equal", 5, 7))
sketch11.addConstraint(Sketcher.Constraint("Equal", 6, 8))
sketch11.addConstraint(Sketcher.Constraint("Equal", 7, 9))
sketch11.addConstraint(Sketcher.Constraint("Equal", 8, 10))
sketch11.addConstraint(Sketcher.Constraint("Equal", 9, 11))
sketch11.addConstraint(Sketcher.Constraint("Equal", 10, 12))
sketch11.addConstraint(Sketcher.Constraint("Equal", 11, 13))
sketch11.addConstraint(Sketcher.Constraint("Equal", 12, 14))
sketch11.addConstraint(Sketcher.Constraint("Equal", 13, 15))
sketch11.addConstraint(Sketcher.Constraint("Equal", 14, 16))
sketch11.addConstraint(Sketcher.Constraint("Equal", 15, 17))
sketch11.addConstraint(Sketcher.Constraint("Equal", 16, 18))
sketch11.addConstraint(Sketcher.Constraint("Equal", 17, 19))
sketch11.addConstraint(Sketcher.Constraint("Equal", 18, 20))
sketch11.addConstraint(Sketcher.Constraint("Equal", 19, 21))
sketch11.addConstraint(Sketcher.Constraint("Equal", 20, 22))
sketch11.addConstraint(Sketcher.Constraint("Equal", 21, 23))
sketch11.addConstraint(Sketcher.Constraint("Horizontal", 1, 3, 2, 3))
sketch11.addConstraint(Sketcher.Constraint("Horizontal", 3, 3, 4, 3))
sketch11.addConstraint(Sketcher.Constraint("Horizontal", 5, 3, 6, 3))
sketch11.addConstraint(Sketcher.Constraint("Horizontal", 7, 3, 8, 3))
sketch11.addConstraint(Sketcher.Constraint("Horizontal", 9, 3, 10, 3))
sketch11.addConstraint(Sketcher.Constraint("Horizontal", 13, 3, 14, 3))
sketch11.addConstraint(Sketcher.Constraint("Horizontal", 15, 3, 16, 3))
sketch11.addConstraint(Sketcher.Constraint("Horizontal", 17, 3, 18, 3))
sketch11.addConstraint(Sketcher.Constraint("Horizontal", 19, 3, 20, 3))
sketch11.addConstraint(Sketcher.Constraint("Horizontal", 21, 3, 22, 3))
sketch11.addConstraint(Sketcher.Constraint("Vertical", 1, 3, 12, 3))
sketch11.addConstraint(Sketcher.Constraint("Vertical", 3, 3, 14, 3))
sketch11.addConstraint(Sketcher.Constraint("Vertical", 5, 3, 16, 3))
sketch11.addConstraint(Sketcher.Constraint("Vertical", 7, 3, 18, 3))
sketch11.addConstraint(Sketcher.Constraint("Vertical", 9, 3, 20, 3))
sketch11.addConstraint(Sketcher.Constraint("Vertical", 11, 3, 22, 3))
sketch11.addConstraint(Sketcher.Constraint("Diameter", 0, Q("8 mm")))
sketch11.addConstraint(Sketcher.Constraint("Diameter", 1, Q("4 mm")))
sketch11.addConstraint(Sketcher.Constraint("DistanceY", -1, 1, 0, 3, Q("10 mm")))
sketch11.addConstraint(Sketcher.Constraint("DistanceY", -1, 1, 12, 3, Q("79 mm")))
sketch11.addConstraint(Sketcher.Constraint("DistanceX", -1, 1, 0, 3, Q("51.92 mm")))
sketch11.addConstraint(Sketcher.Constraint("DistanceX", -1, 1, 10, 3, Q("128.08 mm")))
sketch11.addConstraint(Sketcher.Constraint("DistanceX", -1, 1, 2, 3, Q("67.152 mm")))
sketch11.addConstraint(Sketcher.Constraint("DistanceX", -1, 1, 4, 3, Q("82.384 mm")))
sketch11.addConstraint(Sketcher.Constraint("DistanceX", -1, 1, 6, 3, Q("97.616 mm")))
sketch11.addConstraint(Sketcher.Constraint("DistanceX", -1, 1, 8, 3, Q("112.848 mm")))
pad11 = body15.newObject("PartDesign::Pad", "Pad010")
pad11.Profile = sketch11
pad11.Length = 29
doc.recompute()

boolean7 = body15.newObject("PartDesign::Boolean", "Boolean006")
boolean7.Type = "Fuse"
boolean7.addObjects([body11])
doc.recompute()

boolean8 = body15.newObject("PartDesign::Boolean", "Boolean007")
boolean8.Type = "Fuse"
boolean8.addObjects([body12])
doc.recompute()

boolean9 = body15.newObject("PartDesign::Boolean", "Boolean008")
boolean9.Type = "Fuse"
boolean9.addObjects([body14])
doc.recompute()

boolean10 = body15.newObject("PartDesign::Boolean", "Boolean009")
boolean10.Type = "Cut"
boolean10.addObjects([body10])
doc.recompute()

boolean11 = body15.newObject("PartDesign::Boolean", "Boolean010")
boolean11.Type = "Cut"
boolean11.addObjects([body9])
doc.recompute()

boolean12 = body15.newObject("PartDesign::Boolean", "Boolean011")
boolean12.Type = "Cut"
boolean12.addObjects([body8])
doc.recompute()

boolean13 = body15.newObject("PartDesign::Boolean", "Boolean012")
boolean13.Type = "Cut"
boolean13.addObjects([body7])

doc.recompute()
